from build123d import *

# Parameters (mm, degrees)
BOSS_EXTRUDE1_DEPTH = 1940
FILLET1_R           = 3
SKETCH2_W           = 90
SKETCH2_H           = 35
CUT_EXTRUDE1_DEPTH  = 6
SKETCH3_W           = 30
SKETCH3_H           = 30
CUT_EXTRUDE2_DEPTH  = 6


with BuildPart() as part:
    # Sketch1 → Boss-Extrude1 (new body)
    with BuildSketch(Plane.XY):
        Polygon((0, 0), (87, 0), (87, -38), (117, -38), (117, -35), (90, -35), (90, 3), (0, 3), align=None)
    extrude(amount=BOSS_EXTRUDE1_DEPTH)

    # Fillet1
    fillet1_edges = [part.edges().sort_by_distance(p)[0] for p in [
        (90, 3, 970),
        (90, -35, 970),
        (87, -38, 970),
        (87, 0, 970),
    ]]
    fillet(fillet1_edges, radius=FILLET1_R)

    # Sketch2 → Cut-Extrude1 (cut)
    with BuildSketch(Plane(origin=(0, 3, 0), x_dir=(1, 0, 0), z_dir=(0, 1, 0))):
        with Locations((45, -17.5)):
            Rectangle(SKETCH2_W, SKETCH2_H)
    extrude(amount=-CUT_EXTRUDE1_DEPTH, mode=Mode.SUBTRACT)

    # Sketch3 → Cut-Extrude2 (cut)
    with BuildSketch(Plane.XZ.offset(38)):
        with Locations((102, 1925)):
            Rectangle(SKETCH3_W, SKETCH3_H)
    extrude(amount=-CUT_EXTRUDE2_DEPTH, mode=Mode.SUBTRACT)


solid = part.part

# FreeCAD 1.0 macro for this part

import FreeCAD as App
import Part
import Sketcher

V = App.Vector
Q = App.Units.Quantity


def edges_at(feature, points):
    """Names of the edges that pass closest to the given points."""
    edges = feature.Shape.Edges
    near = lambda p: min(range(len(edges)), key=lambda i: edges[i].distToShape(Part.Vertex(*p))[0])
    return sorted({f"Edge{near(p) + 1}" for p in points})

doc = App.newDocument("Part")
body = doc.addObject("PartDesign::Body", "Body")

# Sketch on XY plane
sketch1 = body.newObject("Sketcher::SketchObject", "Sketch")
sketch1.AttachmentSupport = (doc.getObject("XY_Plane"), [""])
sketch1.MapMode = "FlatFace"
sketch1.addGeometry(Part.LineSegment(V(0, 0, 0), V(87, 0, 0)), False)
sketch1.addGeometry(Part.LineSegment(V(87, 0, 0), V(87, -38, 0)), False)
sketch1.addGeometry(Part.LineSegment(V(87, -38, 0), V(117, -38, 0)), False)
sketch1.addGeometry(Part.LineSegment(V(117, -38, 0), V(117, -35, 0)), False)
sketch1.addGeometry(Part.LineSegment(V(117, -35, 0), V(90, -35, 0)), False)
sketch1.addGeometry(Part.LineSegment(V(90, -35, 0), V(90, 3, 0)), False)
sketch1.addGeometry(Part.LineSegment(V(90, 3, 0), V(0, 3, 0)), False)
sketch1.addGeometry(Part.LineSegment(V(0, 3, 0), V(0, 0, 0)), False)
sketch1.addConstraint(Sketcher.Constraint("Coincident", 0, 2, 1, 1))
sketch1.addConstraint(Sketcher.Constraint("Coincident", 1, 2, 2, 1))
sketch1.addConstraint(Sketcher.Constraint("Coincident", 2, 2, 3, 1))
sketch1.addConstraint(Sketcher.Constraint("Coincident", 3, 2, 4, 1))
sketch1.addConstraint(Sketcher.Constraint("Coincident", 4, 2, 5, 1))
sketch1.addConstraint(Sketcher.Constraint("Coincident", 5, 2, 6, 1))
sketch1.addConstraint(Sketcher.Constraint("Coincident", 6, 2, 7, 1))
sketch1.addConstraint(Sketcher.Constraint("Coincident", 7, 2, 0, 1))
sketch1.addConstraint(Sketcher.Constraint("Horizontal", 0))
sketch1.addConstraint(Sketcher.Constraint("Vertical", 1))
sketch1.addConstraint(Sketcher.Constraint("Horizontal", 2))
sketch1.addConstraint(Sketcher.Constraint("Vertical", 3))
sketch1.addConstraint(Sketcher.Constraint("Horizontal", 4))
sketch1.addConstraint(Sketcher.Constraint("Vertical", 5))
sketch1.addConstraint(Sketcher.Constraint("Horizontal", 6))
sketch1.addConstraint(Sketcher.Constraint("Vertical", 7))
sketch1.addConstraint(Sketcher.Constraint("Coincident", 7, 2, -1, 1))
sketch1.addConstraint(Sketcher.Constraint("Equal", 1, 5))
sketch1.addConstraint(Sketcher.Constraint("DistanceX", 0, 1, 0, 2, Q("87 mm")))
sketch1.addConstraint(Sketcher.Constraint("DistanceX", 2, 1, 2, 2, Q("30 mm")))
sketch1.addConstraint(Sketcher.Constraint("DistanceX", 4, 2, 4, 1, Q("27 mm")))
sketch1.addConstraint(Sketcher.Constraint("DistanceY", 1, 2, 1, 1, Q("38 mm")))
sketch1.addConstraint(Sketcher.Constraint("DistanceY", 3, 1, 3, 2, Q("3 mm")))
pad1 = body.newObject("PartDesign::Pad", "Pad")
pad1.Profile = sketch1
pad1.Length = 1940
doc.recompute()

fillet = body.newObject("PartDesign::Fillet", "Fillet")
fillet.Base = (pad1, edges_at(pad1, [
    (90, 3, 970),
    (90, -35, 970),
    (87, -38, 970),
    (87, 0, 970),
]))
fillet.Radius = 3

# Sketch on XZ plane
sketch2 = body.newObject("Sketcher::SketchObject", "Sketch001")
sketch2.AttachmentSupport = (doc.getObject("XZ_Plane"), [""])
sketch2.MapMode = "FlatFace"
sketch2.AttachmentOffset = App.Placement(V(0, 0, -3), App.Rotation())
sketch2.addGeometry(Part.LineSegment(V(0, 0, 0), V(0, 35, 0)), False)
sketch2.addGeometry(Part.LineSegment(V(0, 35, 0), V(90, 35, 0)), False)
sketch2.addGeometry(Part.LineSegment(V(90, 35, 0), V(90, 0, 0)), False)
sketch2.addGeometry(Part.LineSegment(V(90, 0, 0), V(0, 0, 0)), False)
sketch2.addConstraint(Sketcher.Constraint("Coincident", 0, 2, 1, 1))
sketch2.addConstraint(Sketcher.Constraint("Coincident", 1, 2, 2, 1))
sketch2.addConstraint(Sketcher.Constraint("Coincident", 2, 2, 3, 1))
sketch2.addConstraint(Sketcher.Constraint("Coincident", 3, 2, 0, 1))
sketch2.addConstraint(Sketcher.Constraint("Vertical", 0))
sketch2.addConstraint(Sketcher.Constraint("Horizontal", 1))
sketch2.addConstraint(Sketcher.Constraint("Vertical", 2))
sketch2.addConstraint(Sketcher.Constraint("Horizontal", 3))
sketch2.addConstraint(Sketcher.Constraint("Coincident", 3, 2, -1, 1))
sketch2.addConstraint(Sketcher.Constraint("DistanceX", 1, 1, 1, 2, Q("90 mm")))
sketch2.addConstraint(Sketcher.Constraint("DistanceY", 0, 1, 0, 2, Q("35 mm")))
pocket1 = body.newObject("PartDesign::Pocket", "Pocket")
pocket1.Profile = sketch2
pocket1.Length = 6
pocket1.Reversed = True

# Sketch on XZ plane
sketch3 = body.newObject("Sketcher::SketchObject", "Sketch002")
sketch3.AttachmentSupport = (doc.getObject("XZ_Plane"), [""])
sketch3.MapMode = "FlatFace"
sketch3.AttachmentOffset = App.Placement(V(0, 0, 38), App.Rotation())
sketch3.addGeometry(Part.LineSegment(V(87, 1940, 0), V(87, 1910, 0)), False)
sketch3.addGeometry(Part.LineSegment(V(87, 1910, 0), V(117, 1910, 0)), False)
sketch3.addGeometry(Part.LineSegment(V(117, 1910, 0), V(117, 1940, 0)), False)
sketch3.addGeometry(Part.LineSegment(V(117, 1940, 0), V(87, 1940, 0)), False)
sketch3.addConstraint(Sketcher.Constraint("Coincident", 0, 2, 1, 1))
sketch3.addConstraint(Sketcher.Constraint("Coincident", 1, 2, 2, 1))
sketch3.addConstraint(Sketcher.Constraint("Coincident", 2, 2, 3, 1))
sketch3.addConstraint(Sketcher.Constraint("Coincident", 3, 2, 0, 1))
sketch3.addConstraint(Sketcher.Constraint("Vertical", 0))
sketch3.addConstraint(Sketcher.Constraint("Horizontal", 1))
sketch3.addConstraint(Sketcher.Constraint("Vertical", 2))
sketch3.addConstraint(Sketcher.Constraint("Horizontal", 3))
sketch3.addConstraint(Sketcher.Constraint("Equal", 3, 0))
sketch3.addConstraint(Sketcher.Constraint("DistanceX", 1, 1, 1, 2, Q("30 mm")))
sketch3.addConstraint(Sketcher.Constraint("DistanceX", -1, 1, 0, 2, Q("87 mm")))
sketch3.addConstraint(Sketcher.Constraint("DistanceY", -1, 1, 0, 2, Q("1910 mm")))
pocket2 = body.newObject("PartDesign::Pocket", "Pocket001")
pocket2.Profile = sketch3
pocket2.Length = 6

doc.recompute()
